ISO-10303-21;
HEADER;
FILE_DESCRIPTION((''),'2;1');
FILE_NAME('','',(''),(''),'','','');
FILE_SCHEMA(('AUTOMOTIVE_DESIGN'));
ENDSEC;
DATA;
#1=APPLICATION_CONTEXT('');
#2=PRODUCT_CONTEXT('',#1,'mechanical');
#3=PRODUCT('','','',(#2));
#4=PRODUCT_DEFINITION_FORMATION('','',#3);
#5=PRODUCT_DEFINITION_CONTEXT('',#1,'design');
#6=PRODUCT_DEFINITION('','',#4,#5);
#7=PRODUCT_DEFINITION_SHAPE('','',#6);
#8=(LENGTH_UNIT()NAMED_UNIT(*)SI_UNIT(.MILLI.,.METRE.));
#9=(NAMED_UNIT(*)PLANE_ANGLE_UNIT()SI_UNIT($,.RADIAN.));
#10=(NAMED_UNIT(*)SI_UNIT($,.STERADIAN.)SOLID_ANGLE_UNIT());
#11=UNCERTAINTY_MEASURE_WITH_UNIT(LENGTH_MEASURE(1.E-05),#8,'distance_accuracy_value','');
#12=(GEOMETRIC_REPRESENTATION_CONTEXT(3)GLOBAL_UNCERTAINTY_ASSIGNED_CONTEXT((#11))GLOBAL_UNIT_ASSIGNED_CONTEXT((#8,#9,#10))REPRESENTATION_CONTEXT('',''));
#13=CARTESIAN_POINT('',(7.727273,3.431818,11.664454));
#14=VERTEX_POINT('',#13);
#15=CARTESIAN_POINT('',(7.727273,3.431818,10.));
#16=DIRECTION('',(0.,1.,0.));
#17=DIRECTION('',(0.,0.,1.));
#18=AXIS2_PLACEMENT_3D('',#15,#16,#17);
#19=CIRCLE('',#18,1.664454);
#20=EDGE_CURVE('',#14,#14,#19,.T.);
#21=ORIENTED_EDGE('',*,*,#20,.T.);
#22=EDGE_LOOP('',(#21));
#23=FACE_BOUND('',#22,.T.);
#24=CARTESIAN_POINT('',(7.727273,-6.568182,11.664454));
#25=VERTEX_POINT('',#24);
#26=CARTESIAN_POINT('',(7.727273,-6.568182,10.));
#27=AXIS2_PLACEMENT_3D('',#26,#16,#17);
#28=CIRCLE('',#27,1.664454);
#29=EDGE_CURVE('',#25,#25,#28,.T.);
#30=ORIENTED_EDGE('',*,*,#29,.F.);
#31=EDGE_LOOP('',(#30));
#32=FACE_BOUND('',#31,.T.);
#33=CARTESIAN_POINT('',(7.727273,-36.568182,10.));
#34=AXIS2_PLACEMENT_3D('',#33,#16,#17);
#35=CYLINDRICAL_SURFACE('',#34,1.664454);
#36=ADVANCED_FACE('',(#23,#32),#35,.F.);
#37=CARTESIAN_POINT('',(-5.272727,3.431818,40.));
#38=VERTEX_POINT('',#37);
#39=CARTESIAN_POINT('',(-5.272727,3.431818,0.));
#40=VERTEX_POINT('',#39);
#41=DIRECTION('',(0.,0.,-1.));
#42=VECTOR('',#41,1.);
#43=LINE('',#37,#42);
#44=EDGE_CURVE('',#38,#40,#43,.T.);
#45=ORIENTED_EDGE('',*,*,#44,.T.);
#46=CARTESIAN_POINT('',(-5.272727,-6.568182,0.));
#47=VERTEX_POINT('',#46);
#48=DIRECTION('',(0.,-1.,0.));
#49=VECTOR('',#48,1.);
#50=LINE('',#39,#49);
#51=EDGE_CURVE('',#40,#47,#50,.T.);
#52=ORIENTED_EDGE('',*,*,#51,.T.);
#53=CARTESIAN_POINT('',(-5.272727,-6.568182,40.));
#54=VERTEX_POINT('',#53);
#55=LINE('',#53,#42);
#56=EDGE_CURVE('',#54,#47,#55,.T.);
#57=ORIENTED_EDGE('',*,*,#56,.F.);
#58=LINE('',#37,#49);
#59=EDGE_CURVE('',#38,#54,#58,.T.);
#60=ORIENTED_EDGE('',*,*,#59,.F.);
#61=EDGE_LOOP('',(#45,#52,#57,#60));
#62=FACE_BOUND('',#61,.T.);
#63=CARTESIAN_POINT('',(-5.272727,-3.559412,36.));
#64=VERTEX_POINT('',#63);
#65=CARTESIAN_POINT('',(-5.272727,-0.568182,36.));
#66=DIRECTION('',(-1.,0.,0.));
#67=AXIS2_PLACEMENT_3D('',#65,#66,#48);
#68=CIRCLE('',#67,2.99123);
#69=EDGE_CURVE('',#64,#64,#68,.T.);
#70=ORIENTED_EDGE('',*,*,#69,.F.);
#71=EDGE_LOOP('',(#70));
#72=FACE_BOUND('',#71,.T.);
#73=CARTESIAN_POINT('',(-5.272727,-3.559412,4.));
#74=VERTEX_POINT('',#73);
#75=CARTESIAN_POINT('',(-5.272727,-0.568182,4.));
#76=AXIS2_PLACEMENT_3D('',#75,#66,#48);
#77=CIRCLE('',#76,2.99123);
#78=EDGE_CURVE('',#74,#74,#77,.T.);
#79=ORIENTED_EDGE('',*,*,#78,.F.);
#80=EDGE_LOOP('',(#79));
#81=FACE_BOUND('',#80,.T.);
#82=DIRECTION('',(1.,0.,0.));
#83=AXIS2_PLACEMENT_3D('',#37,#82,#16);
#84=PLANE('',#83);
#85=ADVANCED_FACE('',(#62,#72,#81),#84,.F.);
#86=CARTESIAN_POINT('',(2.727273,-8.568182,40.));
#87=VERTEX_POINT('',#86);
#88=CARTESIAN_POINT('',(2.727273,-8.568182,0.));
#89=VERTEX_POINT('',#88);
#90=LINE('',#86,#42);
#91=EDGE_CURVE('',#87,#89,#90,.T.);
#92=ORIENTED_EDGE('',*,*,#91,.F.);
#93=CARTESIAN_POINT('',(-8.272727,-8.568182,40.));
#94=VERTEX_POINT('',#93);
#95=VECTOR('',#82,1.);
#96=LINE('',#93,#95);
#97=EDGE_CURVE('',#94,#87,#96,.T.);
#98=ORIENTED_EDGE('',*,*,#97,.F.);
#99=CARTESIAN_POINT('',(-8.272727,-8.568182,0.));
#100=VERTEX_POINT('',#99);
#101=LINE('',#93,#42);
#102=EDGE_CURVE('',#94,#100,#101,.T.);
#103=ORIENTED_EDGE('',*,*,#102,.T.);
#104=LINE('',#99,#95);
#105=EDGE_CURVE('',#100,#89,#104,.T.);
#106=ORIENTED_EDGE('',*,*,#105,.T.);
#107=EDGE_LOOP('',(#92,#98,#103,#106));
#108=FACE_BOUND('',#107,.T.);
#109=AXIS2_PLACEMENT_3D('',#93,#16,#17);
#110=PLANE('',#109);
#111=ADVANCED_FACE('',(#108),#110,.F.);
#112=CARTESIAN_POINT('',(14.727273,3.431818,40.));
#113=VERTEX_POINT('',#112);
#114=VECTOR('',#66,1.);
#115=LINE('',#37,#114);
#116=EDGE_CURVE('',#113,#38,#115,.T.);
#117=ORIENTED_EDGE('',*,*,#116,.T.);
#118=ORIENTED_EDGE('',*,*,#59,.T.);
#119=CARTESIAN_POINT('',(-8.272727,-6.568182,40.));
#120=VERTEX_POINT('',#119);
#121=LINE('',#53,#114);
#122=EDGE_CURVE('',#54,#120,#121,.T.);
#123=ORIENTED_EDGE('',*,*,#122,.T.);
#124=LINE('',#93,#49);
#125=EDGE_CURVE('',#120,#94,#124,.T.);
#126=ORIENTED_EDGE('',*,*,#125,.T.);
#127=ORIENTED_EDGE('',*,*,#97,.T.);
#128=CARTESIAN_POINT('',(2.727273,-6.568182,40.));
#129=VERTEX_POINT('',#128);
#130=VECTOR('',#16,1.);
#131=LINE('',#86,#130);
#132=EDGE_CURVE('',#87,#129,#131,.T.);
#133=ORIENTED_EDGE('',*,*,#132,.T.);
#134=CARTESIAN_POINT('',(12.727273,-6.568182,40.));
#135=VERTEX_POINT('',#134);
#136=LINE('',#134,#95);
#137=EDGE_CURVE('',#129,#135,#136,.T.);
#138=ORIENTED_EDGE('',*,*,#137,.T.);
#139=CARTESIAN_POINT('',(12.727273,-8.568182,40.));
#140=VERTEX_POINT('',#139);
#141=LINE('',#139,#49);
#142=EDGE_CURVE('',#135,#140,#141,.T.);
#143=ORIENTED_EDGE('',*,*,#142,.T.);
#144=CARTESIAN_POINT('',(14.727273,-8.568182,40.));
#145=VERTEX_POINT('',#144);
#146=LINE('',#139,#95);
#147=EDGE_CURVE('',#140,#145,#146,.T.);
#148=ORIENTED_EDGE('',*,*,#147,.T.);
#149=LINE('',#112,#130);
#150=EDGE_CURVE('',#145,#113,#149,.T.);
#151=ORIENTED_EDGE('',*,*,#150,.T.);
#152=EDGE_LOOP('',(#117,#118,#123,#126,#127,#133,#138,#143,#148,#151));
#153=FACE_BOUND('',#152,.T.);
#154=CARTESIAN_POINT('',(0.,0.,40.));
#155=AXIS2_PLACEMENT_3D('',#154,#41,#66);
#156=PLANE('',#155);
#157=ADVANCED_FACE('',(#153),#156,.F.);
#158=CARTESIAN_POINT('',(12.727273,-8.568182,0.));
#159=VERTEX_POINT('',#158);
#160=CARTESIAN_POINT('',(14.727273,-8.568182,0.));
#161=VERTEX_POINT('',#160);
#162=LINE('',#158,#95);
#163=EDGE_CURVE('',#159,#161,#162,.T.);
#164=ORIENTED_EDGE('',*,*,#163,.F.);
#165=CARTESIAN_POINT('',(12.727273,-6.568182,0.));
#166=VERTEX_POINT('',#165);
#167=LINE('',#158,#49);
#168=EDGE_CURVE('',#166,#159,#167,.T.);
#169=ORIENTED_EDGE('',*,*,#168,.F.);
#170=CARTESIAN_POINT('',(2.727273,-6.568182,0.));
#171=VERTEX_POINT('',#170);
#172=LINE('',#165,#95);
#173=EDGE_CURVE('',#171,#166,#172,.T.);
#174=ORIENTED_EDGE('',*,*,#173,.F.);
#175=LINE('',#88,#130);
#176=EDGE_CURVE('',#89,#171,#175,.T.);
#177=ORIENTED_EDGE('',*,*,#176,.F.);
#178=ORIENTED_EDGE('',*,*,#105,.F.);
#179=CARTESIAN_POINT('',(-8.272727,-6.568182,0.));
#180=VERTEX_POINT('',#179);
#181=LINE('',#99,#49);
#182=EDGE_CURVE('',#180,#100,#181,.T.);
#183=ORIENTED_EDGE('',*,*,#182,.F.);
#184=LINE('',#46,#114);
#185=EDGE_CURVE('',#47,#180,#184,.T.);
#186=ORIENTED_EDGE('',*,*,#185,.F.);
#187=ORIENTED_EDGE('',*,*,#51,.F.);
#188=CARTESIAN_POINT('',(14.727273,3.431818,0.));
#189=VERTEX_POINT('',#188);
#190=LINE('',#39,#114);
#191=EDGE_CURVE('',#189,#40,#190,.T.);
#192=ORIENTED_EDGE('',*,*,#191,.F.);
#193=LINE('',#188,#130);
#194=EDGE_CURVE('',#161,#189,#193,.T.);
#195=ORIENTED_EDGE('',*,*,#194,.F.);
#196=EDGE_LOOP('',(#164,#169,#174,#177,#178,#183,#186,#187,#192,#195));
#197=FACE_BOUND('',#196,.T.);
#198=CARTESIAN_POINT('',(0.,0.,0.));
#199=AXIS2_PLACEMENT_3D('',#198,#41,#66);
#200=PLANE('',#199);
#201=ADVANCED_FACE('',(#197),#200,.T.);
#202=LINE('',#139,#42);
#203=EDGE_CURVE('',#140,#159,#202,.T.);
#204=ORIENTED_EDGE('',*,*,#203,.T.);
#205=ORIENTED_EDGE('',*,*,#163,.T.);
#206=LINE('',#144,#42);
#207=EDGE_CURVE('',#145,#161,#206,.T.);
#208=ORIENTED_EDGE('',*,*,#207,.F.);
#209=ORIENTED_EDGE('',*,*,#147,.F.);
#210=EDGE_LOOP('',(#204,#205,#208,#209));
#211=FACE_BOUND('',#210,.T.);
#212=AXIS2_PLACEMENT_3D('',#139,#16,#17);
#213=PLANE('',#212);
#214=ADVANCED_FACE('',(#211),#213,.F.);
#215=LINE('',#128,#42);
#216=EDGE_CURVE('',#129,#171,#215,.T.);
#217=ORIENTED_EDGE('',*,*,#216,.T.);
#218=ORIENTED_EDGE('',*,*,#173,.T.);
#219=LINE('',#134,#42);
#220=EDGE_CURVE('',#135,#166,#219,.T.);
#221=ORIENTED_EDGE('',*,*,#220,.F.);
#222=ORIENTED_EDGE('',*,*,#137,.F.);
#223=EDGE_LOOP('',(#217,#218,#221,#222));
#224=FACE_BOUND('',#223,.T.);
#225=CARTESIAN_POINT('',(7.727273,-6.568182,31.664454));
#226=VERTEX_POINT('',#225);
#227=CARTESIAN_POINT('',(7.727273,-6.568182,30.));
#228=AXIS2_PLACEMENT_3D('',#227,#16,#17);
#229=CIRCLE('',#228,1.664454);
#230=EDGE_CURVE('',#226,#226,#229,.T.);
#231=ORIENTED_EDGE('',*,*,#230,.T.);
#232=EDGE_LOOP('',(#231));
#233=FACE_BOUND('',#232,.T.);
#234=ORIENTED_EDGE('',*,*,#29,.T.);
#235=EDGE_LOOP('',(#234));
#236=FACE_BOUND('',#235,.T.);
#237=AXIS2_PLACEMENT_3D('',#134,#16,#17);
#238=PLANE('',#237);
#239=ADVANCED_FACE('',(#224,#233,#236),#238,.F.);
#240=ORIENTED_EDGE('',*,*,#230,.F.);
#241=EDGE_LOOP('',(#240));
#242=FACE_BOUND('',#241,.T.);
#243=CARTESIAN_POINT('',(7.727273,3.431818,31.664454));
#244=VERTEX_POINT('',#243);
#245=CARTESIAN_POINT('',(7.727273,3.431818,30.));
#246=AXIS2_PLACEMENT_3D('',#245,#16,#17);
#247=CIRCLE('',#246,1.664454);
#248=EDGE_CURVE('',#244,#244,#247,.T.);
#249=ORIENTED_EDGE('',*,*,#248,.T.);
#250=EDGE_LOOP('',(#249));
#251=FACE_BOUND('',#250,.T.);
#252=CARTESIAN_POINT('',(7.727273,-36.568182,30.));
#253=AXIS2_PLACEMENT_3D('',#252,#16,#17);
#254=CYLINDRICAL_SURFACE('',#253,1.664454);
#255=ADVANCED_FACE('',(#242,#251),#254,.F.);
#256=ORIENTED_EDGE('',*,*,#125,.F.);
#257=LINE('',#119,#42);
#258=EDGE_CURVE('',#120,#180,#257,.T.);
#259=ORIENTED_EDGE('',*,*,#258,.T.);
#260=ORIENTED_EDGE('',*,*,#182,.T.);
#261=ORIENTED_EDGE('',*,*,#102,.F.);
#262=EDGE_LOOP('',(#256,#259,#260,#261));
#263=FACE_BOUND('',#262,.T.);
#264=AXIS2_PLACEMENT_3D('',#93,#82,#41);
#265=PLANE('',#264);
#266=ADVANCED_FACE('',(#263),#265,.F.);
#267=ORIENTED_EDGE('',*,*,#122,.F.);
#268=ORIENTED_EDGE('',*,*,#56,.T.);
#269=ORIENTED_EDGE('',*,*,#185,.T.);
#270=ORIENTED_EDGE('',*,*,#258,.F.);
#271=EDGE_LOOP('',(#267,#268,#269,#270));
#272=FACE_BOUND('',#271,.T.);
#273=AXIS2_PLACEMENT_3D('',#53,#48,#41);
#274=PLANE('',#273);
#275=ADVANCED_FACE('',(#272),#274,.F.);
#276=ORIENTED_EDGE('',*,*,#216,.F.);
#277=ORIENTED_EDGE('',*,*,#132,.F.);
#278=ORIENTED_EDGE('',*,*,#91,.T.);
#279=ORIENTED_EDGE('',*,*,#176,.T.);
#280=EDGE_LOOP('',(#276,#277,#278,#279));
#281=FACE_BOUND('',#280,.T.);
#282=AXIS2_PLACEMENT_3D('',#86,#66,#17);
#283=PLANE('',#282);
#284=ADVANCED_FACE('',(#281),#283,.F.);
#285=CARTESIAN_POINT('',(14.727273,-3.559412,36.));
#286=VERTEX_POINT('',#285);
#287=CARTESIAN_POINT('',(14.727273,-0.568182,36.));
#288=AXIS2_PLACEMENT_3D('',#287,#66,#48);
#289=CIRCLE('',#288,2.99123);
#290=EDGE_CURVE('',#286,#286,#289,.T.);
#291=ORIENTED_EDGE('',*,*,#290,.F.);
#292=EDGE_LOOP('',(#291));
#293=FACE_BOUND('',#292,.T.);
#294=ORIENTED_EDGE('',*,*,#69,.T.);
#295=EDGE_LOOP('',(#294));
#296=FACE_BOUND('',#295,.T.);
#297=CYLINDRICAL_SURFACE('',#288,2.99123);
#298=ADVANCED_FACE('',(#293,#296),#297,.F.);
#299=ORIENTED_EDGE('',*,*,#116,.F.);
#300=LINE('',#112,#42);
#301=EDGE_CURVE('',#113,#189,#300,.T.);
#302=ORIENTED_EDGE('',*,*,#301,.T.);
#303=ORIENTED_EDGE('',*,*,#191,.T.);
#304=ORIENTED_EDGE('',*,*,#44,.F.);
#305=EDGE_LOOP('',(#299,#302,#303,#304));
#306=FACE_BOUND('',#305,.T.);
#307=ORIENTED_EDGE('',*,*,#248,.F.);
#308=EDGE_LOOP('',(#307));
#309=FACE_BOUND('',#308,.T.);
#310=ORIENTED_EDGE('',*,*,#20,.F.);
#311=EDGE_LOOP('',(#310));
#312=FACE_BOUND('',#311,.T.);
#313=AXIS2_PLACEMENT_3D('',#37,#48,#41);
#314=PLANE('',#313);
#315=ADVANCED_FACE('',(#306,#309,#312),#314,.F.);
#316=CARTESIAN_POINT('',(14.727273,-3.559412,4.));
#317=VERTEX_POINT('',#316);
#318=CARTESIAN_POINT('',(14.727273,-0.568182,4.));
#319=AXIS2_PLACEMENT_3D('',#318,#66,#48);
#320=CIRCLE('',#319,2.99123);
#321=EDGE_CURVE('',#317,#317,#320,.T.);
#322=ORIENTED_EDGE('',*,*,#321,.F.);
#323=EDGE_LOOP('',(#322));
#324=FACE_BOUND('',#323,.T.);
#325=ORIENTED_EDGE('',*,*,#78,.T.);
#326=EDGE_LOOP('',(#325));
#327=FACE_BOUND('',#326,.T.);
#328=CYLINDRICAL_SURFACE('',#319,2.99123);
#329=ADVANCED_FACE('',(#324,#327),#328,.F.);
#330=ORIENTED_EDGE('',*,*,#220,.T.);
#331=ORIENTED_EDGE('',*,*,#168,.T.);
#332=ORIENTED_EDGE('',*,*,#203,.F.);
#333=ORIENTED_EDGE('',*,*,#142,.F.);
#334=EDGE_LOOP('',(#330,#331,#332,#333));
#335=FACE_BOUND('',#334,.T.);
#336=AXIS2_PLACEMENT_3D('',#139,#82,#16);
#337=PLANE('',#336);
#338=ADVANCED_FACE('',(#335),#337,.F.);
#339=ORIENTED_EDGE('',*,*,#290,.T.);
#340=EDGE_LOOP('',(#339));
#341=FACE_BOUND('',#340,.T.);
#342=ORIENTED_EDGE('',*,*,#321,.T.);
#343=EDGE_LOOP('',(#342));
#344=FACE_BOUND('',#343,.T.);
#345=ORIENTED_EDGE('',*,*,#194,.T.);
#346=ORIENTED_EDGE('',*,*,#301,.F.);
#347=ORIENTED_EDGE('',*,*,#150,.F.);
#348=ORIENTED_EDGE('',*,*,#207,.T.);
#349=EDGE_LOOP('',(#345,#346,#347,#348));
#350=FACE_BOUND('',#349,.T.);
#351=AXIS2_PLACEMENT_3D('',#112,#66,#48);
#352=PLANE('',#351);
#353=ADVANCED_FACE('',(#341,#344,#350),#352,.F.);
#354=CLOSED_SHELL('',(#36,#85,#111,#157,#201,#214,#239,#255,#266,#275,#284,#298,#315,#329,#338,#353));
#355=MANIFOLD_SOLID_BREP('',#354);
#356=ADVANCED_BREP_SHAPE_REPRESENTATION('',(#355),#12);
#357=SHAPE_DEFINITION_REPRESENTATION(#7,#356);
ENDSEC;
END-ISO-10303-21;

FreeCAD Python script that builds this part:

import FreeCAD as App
import Part
import Sketcher
from FreeCAD import Vector

doc = App.newDocument("Part")
body = doc.addObject("PartDesign::Body", "Body")

sketch1 = body.newObject("Sketcher::SketchObject", "Sketch")
sketch1.AttachmentSupport = (doc.getObject("XY_Plane"), [""])
sketch1.MapMode = "FlatFace"
sketch1.addGeometry([
    Part.LineSegment(Vector(12.7, -8.6, 0), Vector(14.7, -8.6, 0)),
    Part.LineSegment(Vector(14.7, -8.6, 0), Vector(14.7, 3.4, 0)),
    Part.LineSegment(Vector(14.7, 3.4, 0), Vector(-5.3, 3.4, 0)),
    Part.LineSegment(Vector(-5.3, 3.4, 0), Vector(-5.3, -6.6, 0)),
    Part.LineSegment(Vector(-5.3, -6.6, 0), Vector(-8.3, -6.6, 0)),
    Part.LineSegment(Vector(-8.3, -6.6, 0), Vector(-8.3, -8.6, 0)),
    Part.LineSegment(Vector(-8.3, -8.6, 0), Vector(2.7, -8.6, 0)),
    Part.LineSegment(Vector(2.7, -8.6, 0), Vector(2.7, -6.6, 0)),
    Part.LineSegment(Vector(2.7, -6.6, 0), Vector(12.7, -6.6, 0)),
    Part.LineSegment(Vector(12.7, -6.6, 0), Vector(12.7, -8.6, 0)),
], False)
sketch1.addConstraint([
    Sketcher.Constraint("Coincident", 0, 2, 1, 1),
    Sketcher.Constraint("Coincident", 1, 2, 2, 1),
    Sketcher.Constraint("Coincident", 2, 2, 3, 1),
    Sketcher.Constraint("Coincident", 3, 2, 4, 1),
    Sketcher.Constraint("Coincident", 4, 2, 5, 1),
    Sketcher.Constraint("Coincident", 5, 2, 6, 1),
    Sketcher.Constraint("Coincident", 6, 2, 7, 1),
    Sketcher.Constraint("Coincident", 7, 2, 8, 1),
    Sketcher.Constraint("Coincident", 8, 2, 9, 1),
    Sketcher.Constraint("Coincident", 9, 2, 0, 1),
    Sketcher.Constraint("Horizontal", 0),
    Sketcher.Constraint("Vertical", 1),
    Sketcher.Constraint("Horizontal", 2),
    Sketcher.Constraint("Vertical", 3),
    Sketcher.Constraint("Horizontal", 4),
    Sketcher.Constraint("Vertical", 5),
    Sketcher.Constraint("Horizontal", 6),
    Sketcher.Constraint("Vertical", 7),
    Sketcher.Constraint("Horizontal", 8),
    Sketcher.Constraint("Vertical", 9),
    Sketcher.Constraint("Horizontal", 0, 2, 5, 2),
    Sketcher.Constraint("Horizontal", 4, 2, 7, 2),
    Sketcher.Constraint("Equal", 8, 3),
    Sketcher.Constraint("Equal", 0, 5),
    Sketcher.Constraint("DistanceX", 0, 1, 0, 2, 2.0),
    Sketcher.Constraint("DistanceX", 2, 2, 2, 1, 20.0),
    Sketcher.Constraint("DistanceX", 4, 2, 4, 1, 3.0),
    Sketcher.Constraint("DistanceX", 6, 1, 6, 2, 11.0),
    Sketcher.Constraint("DistanceY", 0, 2, -1, 1, 8.568182),
    Sketcher.Constraint("DistanceX", -1, 1, 0, 2, 14.727273),
])
pad1 = body.newObject("PartDesign::Pad", "Pad")
pad1.Profile = sketch1
pad1.Length = 40

sketch2 = body.newObject("Sketcher::SketchObject", "Sketch001")
sketch2.AttachmentSupport = (doc.getObject("YZ_Plane"), [""])
sketch2.MapMode = "FlatFace"
sketch2.AttachmentOffset = App.Placement(Vector(0, 0, -5.272727), App.Rotation())
sketch2.addGeometry([
    Part.Circle(Vector(-0.6, 4, 0), Vector(0, 0, 1), 3),
    Part.Circle(Vector(-0.6, 36, 0), Vector(0, 0, 1), 3),
], False)
sketch2.addConstraint([
    Sketcher.Constraint("Equal", 0, 1),
    Sketcher.Constraint("Vertical", 0, 3, 1, 3),
    Sketcher.Constraint("DistanceY", -1, 1, 0, 3, 4.0),
    Sketcher.Constraint("DistanceY", -1, 1, 1, 3, 36.0),
    Sketcher.Constraint("Diameter", 0, 5.982459),
    Sketcher.Constraint("DistanceX", 0, 3, -1, 1, 0.568182),
])
pocket1 = body.newObject("PartDesign::Pocket", "Pocket")
pocket1.Profile = sketch2
pocket1.Type = "ThroughAll"
pocket1.Reversed = True

sketch3 = body.newObject("Sketcher::SketchObject", "Sketch002")
sketch3.AttachmentSupport = (doc.getObject("XZ_Plane"), [""])
sketch3.MapMode = "FlatFace"
sketch3.AttachmentOffset = App.Placement(Vector(0, 0, -3.431818), App.Rotation())
sketch3.addGeometry([
    Part.Circle(Vector(7.7, 30, 0), Vector(0, 0, 1), 1.7),
    Part.Circle(Vector(7.7, 10, 0), Vector(0, 0, 1), 1.7),
], False)
sketch3.addConstraint([
    Sketcher.Constraint("Equal", 0, 1),
    Sketcher.Constraint("Vertical", 0, 3, 1, 3),
    Sketcher.Constraint("DistanceY", -1, 1, 0, 3, 30.0),
    Sketcher.Constraint("DistanceY", -1, 1, 1, 3, 10.0),
    Sketcher.Constraint("Diameter", 0, 3.328908),
    Sketcher.Constraint("DistanceX", -1, 1, 0, 3, 7.727273),
])
pocket2 = body.newObject("PartDesign::Pocket", "Pocket001")
pocket2.Profile = sketch3
pocket2.Length = 40
pocket2.Reversed = True

doc.recompute()
